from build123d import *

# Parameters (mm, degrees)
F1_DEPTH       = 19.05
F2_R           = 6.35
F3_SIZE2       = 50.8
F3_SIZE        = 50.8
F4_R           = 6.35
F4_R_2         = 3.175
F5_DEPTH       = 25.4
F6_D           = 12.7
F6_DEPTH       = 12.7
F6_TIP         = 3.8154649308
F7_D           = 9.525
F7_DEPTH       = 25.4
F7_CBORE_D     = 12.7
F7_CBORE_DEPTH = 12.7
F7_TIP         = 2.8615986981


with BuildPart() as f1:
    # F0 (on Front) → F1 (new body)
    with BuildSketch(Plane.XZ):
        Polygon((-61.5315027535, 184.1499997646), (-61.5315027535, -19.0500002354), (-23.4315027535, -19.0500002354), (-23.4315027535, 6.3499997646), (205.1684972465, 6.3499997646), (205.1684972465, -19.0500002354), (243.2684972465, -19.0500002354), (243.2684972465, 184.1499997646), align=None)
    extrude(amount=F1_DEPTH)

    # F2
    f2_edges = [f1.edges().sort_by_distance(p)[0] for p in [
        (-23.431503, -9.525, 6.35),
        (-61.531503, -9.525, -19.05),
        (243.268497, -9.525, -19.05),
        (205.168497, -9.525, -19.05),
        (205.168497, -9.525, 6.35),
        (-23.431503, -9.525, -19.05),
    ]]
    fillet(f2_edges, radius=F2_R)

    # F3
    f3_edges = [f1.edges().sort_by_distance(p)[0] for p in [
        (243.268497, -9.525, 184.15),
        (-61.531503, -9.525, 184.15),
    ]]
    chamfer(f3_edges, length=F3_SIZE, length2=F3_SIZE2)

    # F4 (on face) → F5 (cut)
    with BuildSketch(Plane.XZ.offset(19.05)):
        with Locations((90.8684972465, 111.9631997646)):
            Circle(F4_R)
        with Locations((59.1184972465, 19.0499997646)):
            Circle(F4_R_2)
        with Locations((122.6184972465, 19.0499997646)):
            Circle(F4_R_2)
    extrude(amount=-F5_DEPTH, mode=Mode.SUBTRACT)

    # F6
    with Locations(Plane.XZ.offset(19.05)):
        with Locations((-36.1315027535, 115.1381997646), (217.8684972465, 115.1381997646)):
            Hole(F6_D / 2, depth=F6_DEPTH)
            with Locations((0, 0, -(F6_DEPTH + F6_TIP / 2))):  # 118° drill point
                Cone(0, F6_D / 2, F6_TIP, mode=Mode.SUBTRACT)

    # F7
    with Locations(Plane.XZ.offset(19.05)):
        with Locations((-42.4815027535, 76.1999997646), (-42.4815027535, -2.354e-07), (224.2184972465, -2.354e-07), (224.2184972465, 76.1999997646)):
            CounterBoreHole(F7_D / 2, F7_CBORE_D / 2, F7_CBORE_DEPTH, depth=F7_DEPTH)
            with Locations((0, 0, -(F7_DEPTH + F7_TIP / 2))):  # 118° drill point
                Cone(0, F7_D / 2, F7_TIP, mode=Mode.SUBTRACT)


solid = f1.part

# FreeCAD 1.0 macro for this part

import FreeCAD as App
import Part
import Sketcher
Q = App.Units.Quantity


def edges_at(feature, points):
    """Names of the edges that pass closest to the given points."""
    edges = feature.Shape.Edges
    near = lambda p: min(range(len(edges)), key=lambda i: edges[i].distToShape(Part.Vertex(*p))[0])
    return sorted({f"Edge{near(p) + 1}" for p in points})


def add_polygon(sketch, points):
    """Adds a closed chain of lines whose ends are joined by coincident constraints."""
    first, n = sketch.GeometryCount, len(points)
    for a, b in zip(points, points[1:] + points[:1]):
        sketch.addGeometry(Part.LineSegment(App.Vector(*a, 0), App.Vector(*b, 0)), False)
    for i in range(n):
        sketch.addConstraint(Sketcher.Constraint("Coincident", first + i, 2, first + (i + 1) % n, 1))

doc = App.newDocument("Part")
body = doc.addObject("PartDesign::Body", "Body")

# Sketch on XZ plane
sketch1 = body.newObject("Sketcher::SketchObject", "Sketch")
sketch1.AttachmentSupport = (doc.getObject("XZ_Plane"), [""])
sketch1.MapMode = "FlatFace"
add_polygon(sketch1, [(-62, 184), (-62, -19), (-23, -19), (-23, 6), (205, 6), (205, -19), (243, -19), (243, 184)])  # lines 0-7
sketch1.addConstraint([
    Sketcher.Constraint("Vertical", 0),
    Sketcher.Constraint("Horizontal", 1),
    Sketcher.Constraint("Vertical", 2),
    Sketcher.Constraint("Horizontal", 3),
    Sketcher.Constraint("Vertical", 4),
    Sketcher.Constraint("Horizontal", 5),
    Sketcher.Constraint("Vertical", 6),
    Sketcher.Constraint("Horizontal", 7),
    Sketcher.Constraint("Horizontal", 1, 2, 4, 2),
    Sketcher.Constraint("Equal", 1, 5),
    Sketcher.Constraint("DistanceX", 3, 1, 3, 2, Q("9 in")),
    Sketcher.Constraint("DistanceX", 7, 2, 7, 1, Q("12 in")),
    Sketcher.Constraint("DistanceY", 0, 2, 0, 1, Q("8 in")),
    Sketcher.Constraint("DistanceY", 2, 1, 2, 2, Q("1 in")),
    Sketcher.Constraint("DistanceY", 0, 2, -1, 1, Q("0.75 in")),
    Sketcher.Constraint("DistanceX", 0, 2, -1, 1, Q("2.4225001 in")),
])
pad1 = body.newObject("PartDesign::Pad", "Pad")
pad1.Profile = sketch1
pad1.Length = Q("0.75 in")
doc.recompute()

fillet = body.newObject("PartDesign::Fillet", "Fillet")
fillet.Base = (pad1, edges_at(pad1, [
    (-23.432, -9.525, 6.35),
    (-61.532, -9.525, -19.05),
    (243.268, -9.525, -19.05),
    (205.168, -9.525, -19.05),
    (205.168, -9.525, 6.35),
    (-23.432, -9.525, -19.05),
]))
fillet.Radius = Q("0.25 in")
doc.recompute()

chamfer = body.newObject("PartDesign::Chamfer", "Chamfer")
chamfer.Base = (fillet, edges_at(fillet, [(243.268, -9.525, 184.15), (-61.532, -9.525, 184.15)]))
chamfer.ChamferType = "Two distances"
chamfer.Size = Q("2 in")
chamfer.Size2 = Q("2 in")

# Sketch on XZ plane
sketch2 = body.newObject("Sketcher::SketchObject", "Sketch001")
sketch2.AttachmentSupport = (doc.getObject("XZ_Plane"), [""])
sketch2.MapMode = "FlatFace"
sketch2.AttachmentOffset = App.Placement(App.Vector(0, 0, 0.75 * 25.4), App.Rotation())
sketch2.addGeometry([
    Part.Circle(App.Vector(90.9, 112, 0), App.Vector(0, 0, 1), 6.3),
    Part.Circle(App.Vector(59.1, 19, 0), App.Vector(0, 0, 1), 3.2),
    Part.Circle(App.Vector(122.6, 19, 0), App.Vector(0, 0, 1), 3.2),
], False)
sketch2.addConstraint([
    Sketcher.Constraint("Equal", 1, 2),
    Sketcher.Constraint("Horizontal", 1, 3, 2, 3),
    Sketcher.Constraint("Diameter", 0, Q("0.5 in")),
    Sketcher.Constraint("Diameter", 1, Q("0.25 in")),
    Sketcher.Constraint("DistanceX", 1, 3, 2, 3, Q("2.5 in")),
    Sketcher.Constraint("DistanceY", -1, 1, 1, 3, Q("0.75 in")),
    Sketcher.Constraint("DistanceX", 1, 3, 0, 3, Q("1.25 in")),
    Sketcher.Constraint("DistanceY", -1, 1, 0, 3, Q("4.408 in")),
    Sketcher.Constraint("DistanceX", -1, 1, 0, 3, Q("3.5774999 in")),
])
pocket1 = body.newObject("PartDesign::Pocket", "Pocket")
pocket1.Profile = sketch2
pocket1.Length = Q("1 in")

# Sketch on XZ plane
sketch3 = body.newObject("Sketcher::SketchObject", "Sketch002")
sketch3.AttachmentSupport = (doc.getObject("XZ_Plane"), [""])
sketch3.MapMode = "FlatFace"
sketch3.AttachmentOffset = App.Placement(App.Vector(0, 0, 0.75 * 25.4), App.Rotation())
sketch3.addGeometry([
    Part.Circle(App.Vector(-36, 115, 0), App.Vector(0, 0, 1), 6),
    Part.Circle(App.Vector(218, 115, 0), App.Vector(0, 0, 1), 6),
], False)
sketch3.addConstraint([
    Sketcher.Constraint("Equal", 0, 1),
    Sketcher.Constraint("Horizontal", 0, 3, 1, 3),
    Sketcher.Constraint("Diameter", 0, Q("0.5 in")),
    Sketcher.Constraint("DistanceX", 0, 3, 1, 3, Q("10 in")),
    Sketcher.Constraint("DistanceY", -1, 1, 0, 3, Q("4.533 in")),
    Sketcher.Constraint("DistanceX", 0, 3, -1, 1, Q("1.4225001 in")),
])
doc.recompute()
hole = body.newObject("PartDesign::Hole", "Hole")
hole.Profile = sketch3
hole.ThreadType = "None"
hole.Diameter = Q("0.5 in")
hole.DepthType = "Dimension"
hole.Depth = Q("0.5 in")
hole.DrillPoint = "Angled"
hole.DrillPointAngle = 118

# Sketch on XZ plane
sketch4 = body.newObject("Sketcher::SketchObject", "Sketch003")
sketch4.AttachmentSupport = (doc.getObject("XZ_Plane"), [""])
sketch4.MapMode = "FlatFace"
sketch4.AttachmentOffset = App.Placement(App.Vector(0, 0, 0.75 * 25.4), App.Rotation())
sketch4.addGeometry([
    Part.Circle(App.Vector(-42.5, 76.2, 0), App.Vector(0, 0, 1), 4.8),
    Part.Circle(App.Vector(-42.5, 0, 0), App.Vector(0, 0, 1), 4.8),
    Part.Circle(App.Vector(224.2, 0, 0), App.Vector(0, 0, 1), 4.8),
    Part.Circle(App.Vector(224.2, 76.2, 0), App.Vector(0, 0, 1), 4.8),
], False)
sketch4.addConstraint([
    Sketcher.Constraint("Equal", 0, 1),
    Sketcher.Constraint("Equal", 1, 2),
    Sketcher.Constraint("Equal", 2, 3),
    Sketcher.Constraint("PointOnObject", 1, 3, -1),
    Sketcher.Constraint("PointOnObject", 2, 3, -1),
    Sketcher.Constraint("Horizontal", 0, 3, 3, 3),
    Sketcher.Constraint("Vertical", 0, 3, 1, 3),
    Sketcher.Constraint("Vertical", 2, 3, 3, 3),
    Sketcher.Constraint("Diameter", 0, Q("0.375 in")),
    Sketcher.Constraint("DistanceY", -1, 1, 0, 3, Q("3 in")),
    Sketcher.Constraint("DistanceX", 1, 3, 2, 3, Q("10.5 in")),
    Sketcher.Constraint("DistanceX", 0, 3, -1, 1, Q("1.6725001 in")),
])
doc.recompute()
hole2 = body.newObject("PartDesign::Hole", "Hole001")
hole2.Profile = sketch4
hole2.ThreadType = "None"
hole2.Diameter = Q("0.375 in")
hole2.DepthType = "Dimension"
hole2.Depth = Q("1 in")
hole2.DrillPoint = "Angled"
hole2.DrillPointAngle = 118
hole2.HoleCutType = "Counterbore"
hole2.HoleCutDiameter = Q("0.5 in")
hole2.HoleCutDepth = Q("0.5 in")

doc.recompute()
